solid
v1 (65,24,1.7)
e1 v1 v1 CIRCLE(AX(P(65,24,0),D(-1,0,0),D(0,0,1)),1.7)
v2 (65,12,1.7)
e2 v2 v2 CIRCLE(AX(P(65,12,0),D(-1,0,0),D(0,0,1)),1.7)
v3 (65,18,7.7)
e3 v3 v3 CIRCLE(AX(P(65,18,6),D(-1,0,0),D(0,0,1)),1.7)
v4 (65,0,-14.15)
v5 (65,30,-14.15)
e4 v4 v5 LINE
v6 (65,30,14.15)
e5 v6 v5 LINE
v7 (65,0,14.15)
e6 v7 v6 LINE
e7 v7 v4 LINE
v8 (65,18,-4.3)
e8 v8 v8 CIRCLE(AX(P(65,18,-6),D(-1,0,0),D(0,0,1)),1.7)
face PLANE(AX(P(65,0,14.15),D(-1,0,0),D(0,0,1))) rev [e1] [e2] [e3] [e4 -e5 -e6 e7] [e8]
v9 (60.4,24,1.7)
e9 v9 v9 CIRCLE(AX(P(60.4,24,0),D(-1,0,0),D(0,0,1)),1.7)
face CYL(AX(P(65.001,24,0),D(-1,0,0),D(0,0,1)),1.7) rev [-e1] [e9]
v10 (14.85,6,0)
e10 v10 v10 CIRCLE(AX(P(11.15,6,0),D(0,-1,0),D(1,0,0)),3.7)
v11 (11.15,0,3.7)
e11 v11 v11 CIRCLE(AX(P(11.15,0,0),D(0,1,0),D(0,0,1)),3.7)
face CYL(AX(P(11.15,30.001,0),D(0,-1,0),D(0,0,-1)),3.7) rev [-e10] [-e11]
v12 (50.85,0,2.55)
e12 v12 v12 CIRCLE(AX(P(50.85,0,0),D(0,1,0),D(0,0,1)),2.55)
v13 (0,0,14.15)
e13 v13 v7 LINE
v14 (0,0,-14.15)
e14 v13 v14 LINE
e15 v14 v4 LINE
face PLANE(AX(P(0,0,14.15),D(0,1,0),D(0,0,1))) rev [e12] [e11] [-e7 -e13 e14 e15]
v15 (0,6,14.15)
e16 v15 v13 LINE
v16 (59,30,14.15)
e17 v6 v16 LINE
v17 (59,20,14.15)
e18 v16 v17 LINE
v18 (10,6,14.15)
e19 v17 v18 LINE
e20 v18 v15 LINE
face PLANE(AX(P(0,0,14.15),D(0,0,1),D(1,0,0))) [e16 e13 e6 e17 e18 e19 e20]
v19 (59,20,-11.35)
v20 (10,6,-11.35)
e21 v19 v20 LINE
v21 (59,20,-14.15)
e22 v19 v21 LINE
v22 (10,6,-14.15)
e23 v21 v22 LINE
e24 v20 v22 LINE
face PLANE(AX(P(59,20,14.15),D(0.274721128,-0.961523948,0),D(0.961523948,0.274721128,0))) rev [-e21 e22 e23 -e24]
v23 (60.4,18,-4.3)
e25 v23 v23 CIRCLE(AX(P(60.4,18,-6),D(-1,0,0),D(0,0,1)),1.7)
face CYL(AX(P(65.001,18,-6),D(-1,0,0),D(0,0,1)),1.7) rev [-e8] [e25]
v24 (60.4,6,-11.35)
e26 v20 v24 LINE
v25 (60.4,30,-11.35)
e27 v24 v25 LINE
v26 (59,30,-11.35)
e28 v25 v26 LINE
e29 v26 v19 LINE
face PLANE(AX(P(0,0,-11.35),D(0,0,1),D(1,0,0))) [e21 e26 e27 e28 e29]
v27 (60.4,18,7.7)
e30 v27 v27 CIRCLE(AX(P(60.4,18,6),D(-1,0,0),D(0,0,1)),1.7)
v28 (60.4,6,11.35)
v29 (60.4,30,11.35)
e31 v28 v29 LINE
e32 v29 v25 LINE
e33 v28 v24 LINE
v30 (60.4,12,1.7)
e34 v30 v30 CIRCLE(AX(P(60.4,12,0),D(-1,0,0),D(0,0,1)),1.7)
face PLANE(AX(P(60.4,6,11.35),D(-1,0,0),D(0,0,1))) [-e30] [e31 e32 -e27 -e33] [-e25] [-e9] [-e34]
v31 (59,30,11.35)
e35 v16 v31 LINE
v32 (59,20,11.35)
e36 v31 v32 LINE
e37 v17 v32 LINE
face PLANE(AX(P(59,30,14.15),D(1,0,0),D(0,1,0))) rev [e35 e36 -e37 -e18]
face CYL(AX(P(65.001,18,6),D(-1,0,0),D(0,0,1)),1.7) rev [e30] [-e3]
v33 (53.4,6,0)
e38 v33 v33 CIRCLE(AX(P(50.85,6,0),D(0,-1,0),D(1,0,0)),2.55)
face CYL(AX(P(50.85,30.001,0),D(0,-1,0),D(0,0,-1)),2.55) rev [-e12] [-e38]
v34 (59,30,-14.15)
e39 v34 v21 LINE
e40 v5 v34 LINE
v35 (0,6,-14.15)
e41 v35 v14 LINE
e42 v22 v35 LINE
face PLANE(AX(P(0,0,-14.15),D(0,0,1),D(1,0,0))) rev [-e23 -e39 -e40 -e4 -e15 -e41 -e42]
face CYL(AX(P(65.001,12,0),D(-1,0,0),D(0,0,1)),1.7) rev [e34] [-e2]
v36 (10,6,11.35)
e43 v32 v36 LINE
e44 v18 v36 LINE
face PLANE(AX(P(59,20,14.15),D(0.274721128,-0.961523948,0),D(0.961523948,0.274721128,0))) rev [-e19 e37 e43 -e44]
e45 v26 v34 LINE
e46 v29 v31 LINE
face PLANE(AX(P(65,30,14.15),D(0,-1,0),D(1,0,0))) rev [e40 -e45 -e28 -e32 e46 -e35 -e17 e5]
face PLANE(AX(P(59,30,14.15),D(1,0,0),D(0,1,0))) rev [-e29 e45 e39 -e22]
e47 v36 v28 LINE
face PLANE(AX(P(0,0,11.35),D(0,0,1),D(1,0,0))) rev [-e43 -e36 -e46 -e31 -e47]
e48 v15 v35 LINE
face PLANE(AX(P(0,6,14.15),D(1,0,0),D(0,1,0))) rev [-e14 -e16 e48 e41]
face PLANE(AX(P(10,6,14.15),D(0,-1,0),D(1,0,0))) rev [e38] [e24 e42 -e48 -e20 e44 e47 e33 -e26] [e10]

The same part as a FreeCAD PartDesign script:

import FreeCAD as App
import Part
import Sketcher
Q = App.Units.Quantity


def add_polygon(sketch, points):
    """Adds a closed chain of lines whose ends are joined by coincident constraints."""
    first, n = sketch.GeometryCount, len(points)
    for a, b in zip(points, points[1:] + points[:1]):
        sketch.addGeometry(Part.LineSegment(App.Vector(*a, 0), App.Vector(*b, 0)), False)
    for i in range(n):
        sketch.addConstraint(Sketcher.Constraint("Coincident", first + i, 2, first + (i + 1) % n, 1))

doc = App.newDocument("Part")
body = doc.addObject("PartDesign::Body", "Body")

# Sketch on XY plane
sketch1 = body.newObject("Sketcher::SketchObject", "Sketch")
sketch1.AttachmentSupport = (doc.getObject("XY_Plane"), [""])
sketch1.MapMode = "FlatFace"
add_polygon(sketch1, [(0, 0), (65, 0), (65, 30), (59, 30), (59, 20), (10, 6), (0, 6)])  # lines 0-6
sketch1.addConstraint(Sketcher.Constraint("Horizontal", 0))
sketch1.addConstraint(Sketcher.Constraint("Vertical", 1))
sketch1.addConstraint(Sketcher.Constraint("Horizontal", 2))
sketch1.addConstraint(Sketcher.Constraint("Vertical", 3))
sketch1.addConstraint(Sketcher.Constraint("Horizontal", 5))
sketch1.addConstraint(Sketcher.Constraint("Vertical", 6))
sketch1.addConstraint(Sketcher.Constraint("Coincident", 6, 2, -1, 1))
sketch1.addConstraint(Sketcher.Constraint("Equal", 5, 3))
sketch1.addConstraint(Sketcher.Constraint("Equal", 2, 6))
sketch1.addConstraint(Sketcher.Constraint("DistanceX", 0, 1, 0, 2, Q("65 mm")))
sketch1.addConstraint(Sketcher.Constraint("DistanceX", 2, 2, 2, 1, Q("6 mm")))
sketch1.addConstraint(Sketcher.Constraint("DistanceX", 5, 2, 5, 1, Q("10 mm")))
sketch1.addConstraint(Sketcher.Constraint("DistanceY", 1, 1, 1, 2, Q("30 mm")))
pad1 = body.newObject("PartDesign::Pad", "Pad")
pad1.Profile = sketch1
pad1.Length = 28.3
pad1.Midplane = True

# Sketch on XY plane
sketch2 = body.newObject("Sketcher::SketchObject", "Sketch001")
sketch2.AttachmentSupport = (doc.getObject("XY_Plane"), [""])
sketch2.MapMode = "FlatFace"
add_polygon(sketch2, [(0, 30), (0, 6), (60, 6), (60, 30)])  # lines 0-3
sketch2.addConstraint(Sketcher.Constraint("Vertical", 0))
sketch2.addConstraint(Sketcher.Constraint("Horizontal", 1))
sketch2.addConstraint(Sketcher.Constraint("Vertical", 2))
sketch2.addConstraint(Sketcher.Constraint("Horizontal", 3))
sketch2.addConstraint(Sketcher.Constraint("PointOnObject", 0, 2, -2))
sketch2.addConstraint(Sketcher.Constraint("DistanceY", 0, 2, 0, 1, Q("24 mm")))
sketch2.addConstraint(Sketcher.Constraint("DistanceX", 1, 1, 1, 2, Q("60.4 mm")))
sketch2.addConstraint(Sketcher.Constraint("DistanceY", -1, 1, 0, 2, Q("6 mm")))
pocket1 = body.newObject("PartDesign::Pocket", "Pocket")
pocket1.Profile = sketch2
pocket1.Length = 22.7
pocket1.Midplane = True

# Sketch on XZ plane
sketch3 = body.newObject("Sketcher::SketchObject", "Sketch002")
sketch3.AttachmentSupport = (doc.getObject("XZ_Plane"), [""])
sketch3.MapMode = "FlatFace"
sketch3.addGeometry(Part.Circle(App.Vector(50.9, 0, 0), App.Vector(0, 0, 1), 2.5), False)
sketch3.addConstraint(Sketcher.Constraint("PointOnObject", 0, 3, -1))
sketch3.addConstraint(Sketcher.Constraint("Diameter", 0, Q("5.1 mm")))
sketch3.addConstraint(Sketcher.Constraint("DistanceX", -1, 1, 0, 3, Q("50.85 mm")))
pocket2 = body.newObject("PartDesign::Pocket", "Pocket001")
pocket2.Profile = sketch3
pocket2.Type = "UpToFirst"

# Sketch on XZ plane
sketch4 = body.newObject("Sketcher::SketchObject", "Sketch003")
sketch4.AttachmentSupport = (doc.getObject("XZ_Plane"), [""])
sketch4.MapMode = "FlatFace"
sketch4.addGeometry(Part.Circle(App.Vector(11.2, 0, 0), App.Vector(0, 0, 1), 3.7), False)
sketch4.addConstraint(Sketcher.Constraint("PointOnObject", 0, 3, -1))
sketch4.addConstraint(Sketcher.Constraint("Diameter", 0, Q("7.4 mm")))
sketch4.addConstraint(Sketcher.Constraint("DistanceX", -1, 1, 0, 3, Q("11.15 mm")))
pocket3 = body.newObject("PartDesign::Pocket", "Pocket002")
pocket3.Profile = sketch4
pocket3.Type = "UpToFirst"

# Sketch on YZ plane
sketch5 = body.newObject("Sketcher::SketchObject", "Sketch004")
sketch5.AttachmentSupport = (doc.getObject("YZ_Plane"), [""])
sketch5.MapMode = "FlatFace"
sketch5.addGeometry(Part.Circle(App.Vector(24, 0, 0), App.Vector(0, 0, 1), 1.7), False)
sketch5.addConstraint(Sketcher.Constraint("PointOnObject", 0, 3, -1))
sketch5.addConstraint(Sketcher.Constraint("Diameter", 0, Q("3.4 mm")))
sketch5.addConstraint(Sketcher.Constraint("DistanceX", -1, 1, 0, 3, Q("24 mm")))
pocket4 = body.newObject("PartDesign::Pocket", "Pocket003")
pocket4.Profile = sketch5
pocket4.Length = 65
pocket4.Reversed = True

# Sketch on YZ plane
sketch6 = body.newObject("Sketcher::SketchObject", "Sketch005")
sketch6.AttachmentSupport = (doc.getObject("YZ_Plane"), [""])
sketch6.MapMode = "FlatFace"
sketch6.addGeometry(Part.Circle(App.Vector(12, 0, 0), App.Vector(0, 0, 1), 1.7), False)
sketch6.addConstraint(Sketcher.Constraint("PointOnObject", 0, 3, -1))
sketch6.addConstraint(Sketcher.Constraint("Diameter", 0, Q("3.4 mm")))
sketch6.addConstraint(Sketcher.Constraint("DistanceX", -1, 1, 0, 3, Q("12 mm")))
pocket5 = body.newObject("PartDesign::Pocket", "Pocket004")
pocket5.Profile = sketch6
pocket5.Length = 65
pocket5.Reversed = True

# Sketch on YZ plane
sketch7 = body.newObject("Sketcher::SketchObject", "Sketch006")
sketch7.AttachmentSupport = (doc.getObject("YZ_Plane"), [""])
sketch7.MapMode = "FlatFace"
sketch7.addGeometry(Part.Circle(App.Vector(18, 6, 0), App.Vector(0, 0, 1), 1.7), False)
sketch7.addConstraint(Sketcher.Constraint("Diameter", 0, Q("3.4 mm")))
sketch7.addConstraint(Sketcher.Constraint("DistanceX", -1, 1, 0, 3, Q("18 mm")))
sketch7.addConstraint(Sketcher.Constraint("DistanceY", -1, 1, 0, 3, Q("6 mm")))
pocket6 = body.newObject("PartDesign::Pocket", "Pocket005")
pocket6.Profile = sketch7
pocket6.Length = 65
pocket6.Reversed = True

# Sketch on YZ plane
sketch8 = body.newObject("Sketcher::SketchObject", "Sketch007")
sketch8.AttachmentSupport = (doc.getObject("YZ_Plane"), [""])
sketch8.MapMode = "FlatFace"
sketch8.addGeometry(Part.Circle(App.Vector(18, -6, 0), App.Vector(0, 0, 1), 1.7), False)
sketch8.addConstraint(Sketcher.Constraint("Diameter", 0, Q("3.4 mm")))
sketch8.addConstraint(Sketcher.Constraint("DistanceX", -1, 1, 0, 3, Q("18 mm")))
sketch8.addConstraint(Sketcher.Constraint("DistanceY", 0, 3, -1, 1, Q("6 mm")))
pocket7 = body.newObject("PartDesign::Pocket", "Pocket006")
pocket7.Profile = sketch8
pocket7.Length = 65
pocket7.Reversed = True

doc.recompute()
